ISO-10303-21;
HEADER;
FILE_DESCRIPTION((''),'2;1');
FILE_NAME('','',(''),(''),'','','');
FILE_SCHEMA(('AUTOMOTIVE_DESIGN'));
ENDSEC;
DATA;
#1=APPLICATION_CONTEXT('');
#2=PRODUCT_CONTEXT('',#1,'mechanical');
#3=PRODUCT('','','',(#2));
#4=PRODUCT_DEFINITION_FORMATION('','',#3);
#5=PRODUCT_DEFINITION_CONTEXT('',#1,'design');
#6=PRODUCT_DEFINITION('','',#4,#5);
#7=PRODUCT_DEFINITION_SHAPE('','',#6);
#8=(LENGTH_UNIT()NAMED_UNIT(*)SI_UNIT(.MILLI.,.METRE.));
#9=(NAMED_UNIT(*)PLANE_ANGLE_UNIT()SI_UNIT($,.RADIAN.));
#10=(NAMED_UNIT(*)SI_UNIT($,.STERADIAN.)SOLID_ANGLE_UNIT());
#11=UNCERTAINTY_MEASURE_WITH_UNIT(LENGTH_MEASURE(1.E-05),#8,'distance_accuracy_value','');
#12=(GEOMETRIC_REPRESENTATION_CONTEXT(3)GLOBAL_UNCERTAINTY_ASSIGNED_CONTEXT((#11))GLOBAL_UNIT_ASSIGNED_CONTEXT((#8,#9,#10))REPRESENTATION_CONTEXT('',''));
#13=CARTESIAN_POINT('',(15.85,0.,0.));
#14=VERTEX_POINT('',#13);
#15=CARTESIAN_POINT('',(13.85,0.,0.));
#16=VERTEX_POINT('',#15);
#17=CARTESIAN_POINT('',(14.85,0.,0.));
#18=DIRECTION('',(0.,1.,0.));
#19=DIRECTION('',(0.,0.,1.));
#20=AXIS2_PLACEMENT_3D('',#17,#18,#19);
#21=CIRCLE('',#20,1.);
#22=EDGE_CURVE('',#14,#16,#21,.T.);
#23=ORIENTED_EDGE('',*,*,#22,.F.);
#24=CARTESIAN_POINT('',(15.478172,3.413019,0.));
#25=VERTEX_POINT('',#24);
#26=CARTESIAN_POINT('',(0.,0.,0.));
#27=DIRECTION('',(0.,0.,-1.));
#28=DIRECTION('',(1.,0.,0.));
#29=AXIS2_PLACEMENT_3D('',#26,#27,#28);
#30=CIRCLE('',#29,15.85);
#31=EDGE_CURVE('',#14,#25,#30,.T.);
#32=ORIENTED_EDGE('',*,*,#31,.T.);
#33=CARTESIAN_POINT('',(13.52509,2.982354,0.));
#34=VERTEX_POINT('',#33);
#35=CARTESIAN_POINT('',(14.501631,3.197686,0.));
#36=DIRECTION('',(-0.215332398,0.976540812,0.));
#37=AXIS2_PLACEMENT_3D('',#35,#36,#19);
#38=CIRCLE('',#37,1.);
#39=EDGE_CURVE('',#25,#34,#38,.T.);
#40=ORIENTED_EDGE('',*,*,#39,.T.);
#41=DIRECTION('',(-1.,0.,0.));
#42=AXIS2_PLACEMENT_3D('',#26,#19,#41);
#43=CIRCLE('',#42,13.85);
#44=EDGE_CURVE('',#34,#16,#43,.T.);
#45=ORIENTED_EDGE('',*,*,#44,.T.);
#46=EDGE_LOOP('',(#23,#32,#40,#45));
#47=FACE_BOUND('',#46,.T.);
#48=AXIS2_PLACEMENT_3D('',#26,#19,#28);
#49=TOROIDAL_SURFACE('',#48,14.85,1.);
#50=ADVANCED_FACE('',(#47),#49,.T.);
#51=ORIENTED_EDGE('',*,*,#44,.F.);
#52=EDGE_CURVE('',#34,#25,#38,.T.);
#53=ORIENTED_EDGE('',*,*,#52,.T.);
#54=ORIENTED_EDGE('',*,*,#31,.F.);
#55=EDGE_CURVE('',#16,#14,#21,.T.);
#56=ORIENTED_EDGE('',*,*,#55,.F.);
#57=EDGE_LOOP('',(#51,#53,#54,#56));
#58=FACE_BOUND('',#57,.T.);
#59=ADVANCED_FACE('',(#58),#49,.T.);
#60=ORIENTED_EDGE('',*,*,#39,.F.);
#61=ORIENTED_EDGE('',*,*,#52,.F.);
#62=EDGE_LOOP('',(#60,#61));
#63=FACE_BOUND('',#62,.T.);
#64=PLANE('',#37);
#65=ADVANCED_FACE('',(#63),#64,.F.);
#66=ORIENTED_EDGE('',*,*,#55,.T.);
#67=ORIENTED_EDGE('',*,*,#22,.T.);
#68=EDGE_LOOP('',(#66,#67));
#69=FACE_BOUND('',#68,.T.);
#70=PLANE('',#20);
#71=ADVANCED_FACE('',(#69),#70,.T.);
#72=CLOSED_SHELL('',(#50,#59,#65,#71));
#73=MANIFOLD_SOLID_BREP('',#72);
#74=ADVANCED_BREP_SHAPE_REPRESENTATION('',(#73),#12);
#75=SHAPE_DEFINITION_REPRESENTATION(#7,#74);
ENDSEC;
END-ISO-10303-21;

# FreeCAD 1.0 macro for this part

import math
import FreeCAD as App
import Part
import Sketcher

doc = App.newDocument("Part")
body = doc.addObject("PartDesign::Body", "Body")

# Sketch on XZ plane
sketch1 = body.newObject("Sketcher::SketchObject", "Sketch")
sketch1.AttachmentSupport = (doc.getObject("XZ_Plane"), [""])
sketch1.MapMode = "FlatFace"
sketch1.addGeometry(Part.Circle(App.Vector(14.8, 0, 0), App.Vector(0, 0, 1), 1), False)
sketch1.addConstraint(Sketcher.Constraint("PointOnObject", 0, 3, -1))
sketch1.addConstraint(Sketcher.Constraint("Diameter", 0, 2.0))
sketch1.addConstraint(Sketcher.Constraint("DistanceX", -1, 1, 0, 3, 14.85))

# Sketch on XY plane
sketch2 = body.newObject("Sketcher::SketchObject", "Sketch001")
sketch2.AttachmentSupport = (doc.getObject("XY_Plane"), [""])
sketch2.MapMode = "FlatFace"
sketch2.addGeometry(Part.ArcOfCircle(Part.Circle(App.Vector(0, 0, 0), App.Vector(0, 0, 1), 13.8), math.radians(12), math.radians(360)), False)
sketch2.addConstraint(Sketcher.Constraint("Coincident", 0, 3, -1, 1))
sketch2.addConstraint(Sketcher.Constraint("PointOnObject", 0, 2, -1))
sketch2.addConstraint(Sketcher.Constraint("Radius", 0, 13.85))
sketch2.addConstraint(Sketcher.Constraint("DistanceX", -1, 1, 0, 1, 13.52509))
doc.recompute()

additivepipe = body.newObject("PartDesign::AdditivePipe", "AdditivePipe")
additivepipe.Profile = sketch1
additivepipe.Spine = (sketch2, ["Edge1"])

doc.recompute()
